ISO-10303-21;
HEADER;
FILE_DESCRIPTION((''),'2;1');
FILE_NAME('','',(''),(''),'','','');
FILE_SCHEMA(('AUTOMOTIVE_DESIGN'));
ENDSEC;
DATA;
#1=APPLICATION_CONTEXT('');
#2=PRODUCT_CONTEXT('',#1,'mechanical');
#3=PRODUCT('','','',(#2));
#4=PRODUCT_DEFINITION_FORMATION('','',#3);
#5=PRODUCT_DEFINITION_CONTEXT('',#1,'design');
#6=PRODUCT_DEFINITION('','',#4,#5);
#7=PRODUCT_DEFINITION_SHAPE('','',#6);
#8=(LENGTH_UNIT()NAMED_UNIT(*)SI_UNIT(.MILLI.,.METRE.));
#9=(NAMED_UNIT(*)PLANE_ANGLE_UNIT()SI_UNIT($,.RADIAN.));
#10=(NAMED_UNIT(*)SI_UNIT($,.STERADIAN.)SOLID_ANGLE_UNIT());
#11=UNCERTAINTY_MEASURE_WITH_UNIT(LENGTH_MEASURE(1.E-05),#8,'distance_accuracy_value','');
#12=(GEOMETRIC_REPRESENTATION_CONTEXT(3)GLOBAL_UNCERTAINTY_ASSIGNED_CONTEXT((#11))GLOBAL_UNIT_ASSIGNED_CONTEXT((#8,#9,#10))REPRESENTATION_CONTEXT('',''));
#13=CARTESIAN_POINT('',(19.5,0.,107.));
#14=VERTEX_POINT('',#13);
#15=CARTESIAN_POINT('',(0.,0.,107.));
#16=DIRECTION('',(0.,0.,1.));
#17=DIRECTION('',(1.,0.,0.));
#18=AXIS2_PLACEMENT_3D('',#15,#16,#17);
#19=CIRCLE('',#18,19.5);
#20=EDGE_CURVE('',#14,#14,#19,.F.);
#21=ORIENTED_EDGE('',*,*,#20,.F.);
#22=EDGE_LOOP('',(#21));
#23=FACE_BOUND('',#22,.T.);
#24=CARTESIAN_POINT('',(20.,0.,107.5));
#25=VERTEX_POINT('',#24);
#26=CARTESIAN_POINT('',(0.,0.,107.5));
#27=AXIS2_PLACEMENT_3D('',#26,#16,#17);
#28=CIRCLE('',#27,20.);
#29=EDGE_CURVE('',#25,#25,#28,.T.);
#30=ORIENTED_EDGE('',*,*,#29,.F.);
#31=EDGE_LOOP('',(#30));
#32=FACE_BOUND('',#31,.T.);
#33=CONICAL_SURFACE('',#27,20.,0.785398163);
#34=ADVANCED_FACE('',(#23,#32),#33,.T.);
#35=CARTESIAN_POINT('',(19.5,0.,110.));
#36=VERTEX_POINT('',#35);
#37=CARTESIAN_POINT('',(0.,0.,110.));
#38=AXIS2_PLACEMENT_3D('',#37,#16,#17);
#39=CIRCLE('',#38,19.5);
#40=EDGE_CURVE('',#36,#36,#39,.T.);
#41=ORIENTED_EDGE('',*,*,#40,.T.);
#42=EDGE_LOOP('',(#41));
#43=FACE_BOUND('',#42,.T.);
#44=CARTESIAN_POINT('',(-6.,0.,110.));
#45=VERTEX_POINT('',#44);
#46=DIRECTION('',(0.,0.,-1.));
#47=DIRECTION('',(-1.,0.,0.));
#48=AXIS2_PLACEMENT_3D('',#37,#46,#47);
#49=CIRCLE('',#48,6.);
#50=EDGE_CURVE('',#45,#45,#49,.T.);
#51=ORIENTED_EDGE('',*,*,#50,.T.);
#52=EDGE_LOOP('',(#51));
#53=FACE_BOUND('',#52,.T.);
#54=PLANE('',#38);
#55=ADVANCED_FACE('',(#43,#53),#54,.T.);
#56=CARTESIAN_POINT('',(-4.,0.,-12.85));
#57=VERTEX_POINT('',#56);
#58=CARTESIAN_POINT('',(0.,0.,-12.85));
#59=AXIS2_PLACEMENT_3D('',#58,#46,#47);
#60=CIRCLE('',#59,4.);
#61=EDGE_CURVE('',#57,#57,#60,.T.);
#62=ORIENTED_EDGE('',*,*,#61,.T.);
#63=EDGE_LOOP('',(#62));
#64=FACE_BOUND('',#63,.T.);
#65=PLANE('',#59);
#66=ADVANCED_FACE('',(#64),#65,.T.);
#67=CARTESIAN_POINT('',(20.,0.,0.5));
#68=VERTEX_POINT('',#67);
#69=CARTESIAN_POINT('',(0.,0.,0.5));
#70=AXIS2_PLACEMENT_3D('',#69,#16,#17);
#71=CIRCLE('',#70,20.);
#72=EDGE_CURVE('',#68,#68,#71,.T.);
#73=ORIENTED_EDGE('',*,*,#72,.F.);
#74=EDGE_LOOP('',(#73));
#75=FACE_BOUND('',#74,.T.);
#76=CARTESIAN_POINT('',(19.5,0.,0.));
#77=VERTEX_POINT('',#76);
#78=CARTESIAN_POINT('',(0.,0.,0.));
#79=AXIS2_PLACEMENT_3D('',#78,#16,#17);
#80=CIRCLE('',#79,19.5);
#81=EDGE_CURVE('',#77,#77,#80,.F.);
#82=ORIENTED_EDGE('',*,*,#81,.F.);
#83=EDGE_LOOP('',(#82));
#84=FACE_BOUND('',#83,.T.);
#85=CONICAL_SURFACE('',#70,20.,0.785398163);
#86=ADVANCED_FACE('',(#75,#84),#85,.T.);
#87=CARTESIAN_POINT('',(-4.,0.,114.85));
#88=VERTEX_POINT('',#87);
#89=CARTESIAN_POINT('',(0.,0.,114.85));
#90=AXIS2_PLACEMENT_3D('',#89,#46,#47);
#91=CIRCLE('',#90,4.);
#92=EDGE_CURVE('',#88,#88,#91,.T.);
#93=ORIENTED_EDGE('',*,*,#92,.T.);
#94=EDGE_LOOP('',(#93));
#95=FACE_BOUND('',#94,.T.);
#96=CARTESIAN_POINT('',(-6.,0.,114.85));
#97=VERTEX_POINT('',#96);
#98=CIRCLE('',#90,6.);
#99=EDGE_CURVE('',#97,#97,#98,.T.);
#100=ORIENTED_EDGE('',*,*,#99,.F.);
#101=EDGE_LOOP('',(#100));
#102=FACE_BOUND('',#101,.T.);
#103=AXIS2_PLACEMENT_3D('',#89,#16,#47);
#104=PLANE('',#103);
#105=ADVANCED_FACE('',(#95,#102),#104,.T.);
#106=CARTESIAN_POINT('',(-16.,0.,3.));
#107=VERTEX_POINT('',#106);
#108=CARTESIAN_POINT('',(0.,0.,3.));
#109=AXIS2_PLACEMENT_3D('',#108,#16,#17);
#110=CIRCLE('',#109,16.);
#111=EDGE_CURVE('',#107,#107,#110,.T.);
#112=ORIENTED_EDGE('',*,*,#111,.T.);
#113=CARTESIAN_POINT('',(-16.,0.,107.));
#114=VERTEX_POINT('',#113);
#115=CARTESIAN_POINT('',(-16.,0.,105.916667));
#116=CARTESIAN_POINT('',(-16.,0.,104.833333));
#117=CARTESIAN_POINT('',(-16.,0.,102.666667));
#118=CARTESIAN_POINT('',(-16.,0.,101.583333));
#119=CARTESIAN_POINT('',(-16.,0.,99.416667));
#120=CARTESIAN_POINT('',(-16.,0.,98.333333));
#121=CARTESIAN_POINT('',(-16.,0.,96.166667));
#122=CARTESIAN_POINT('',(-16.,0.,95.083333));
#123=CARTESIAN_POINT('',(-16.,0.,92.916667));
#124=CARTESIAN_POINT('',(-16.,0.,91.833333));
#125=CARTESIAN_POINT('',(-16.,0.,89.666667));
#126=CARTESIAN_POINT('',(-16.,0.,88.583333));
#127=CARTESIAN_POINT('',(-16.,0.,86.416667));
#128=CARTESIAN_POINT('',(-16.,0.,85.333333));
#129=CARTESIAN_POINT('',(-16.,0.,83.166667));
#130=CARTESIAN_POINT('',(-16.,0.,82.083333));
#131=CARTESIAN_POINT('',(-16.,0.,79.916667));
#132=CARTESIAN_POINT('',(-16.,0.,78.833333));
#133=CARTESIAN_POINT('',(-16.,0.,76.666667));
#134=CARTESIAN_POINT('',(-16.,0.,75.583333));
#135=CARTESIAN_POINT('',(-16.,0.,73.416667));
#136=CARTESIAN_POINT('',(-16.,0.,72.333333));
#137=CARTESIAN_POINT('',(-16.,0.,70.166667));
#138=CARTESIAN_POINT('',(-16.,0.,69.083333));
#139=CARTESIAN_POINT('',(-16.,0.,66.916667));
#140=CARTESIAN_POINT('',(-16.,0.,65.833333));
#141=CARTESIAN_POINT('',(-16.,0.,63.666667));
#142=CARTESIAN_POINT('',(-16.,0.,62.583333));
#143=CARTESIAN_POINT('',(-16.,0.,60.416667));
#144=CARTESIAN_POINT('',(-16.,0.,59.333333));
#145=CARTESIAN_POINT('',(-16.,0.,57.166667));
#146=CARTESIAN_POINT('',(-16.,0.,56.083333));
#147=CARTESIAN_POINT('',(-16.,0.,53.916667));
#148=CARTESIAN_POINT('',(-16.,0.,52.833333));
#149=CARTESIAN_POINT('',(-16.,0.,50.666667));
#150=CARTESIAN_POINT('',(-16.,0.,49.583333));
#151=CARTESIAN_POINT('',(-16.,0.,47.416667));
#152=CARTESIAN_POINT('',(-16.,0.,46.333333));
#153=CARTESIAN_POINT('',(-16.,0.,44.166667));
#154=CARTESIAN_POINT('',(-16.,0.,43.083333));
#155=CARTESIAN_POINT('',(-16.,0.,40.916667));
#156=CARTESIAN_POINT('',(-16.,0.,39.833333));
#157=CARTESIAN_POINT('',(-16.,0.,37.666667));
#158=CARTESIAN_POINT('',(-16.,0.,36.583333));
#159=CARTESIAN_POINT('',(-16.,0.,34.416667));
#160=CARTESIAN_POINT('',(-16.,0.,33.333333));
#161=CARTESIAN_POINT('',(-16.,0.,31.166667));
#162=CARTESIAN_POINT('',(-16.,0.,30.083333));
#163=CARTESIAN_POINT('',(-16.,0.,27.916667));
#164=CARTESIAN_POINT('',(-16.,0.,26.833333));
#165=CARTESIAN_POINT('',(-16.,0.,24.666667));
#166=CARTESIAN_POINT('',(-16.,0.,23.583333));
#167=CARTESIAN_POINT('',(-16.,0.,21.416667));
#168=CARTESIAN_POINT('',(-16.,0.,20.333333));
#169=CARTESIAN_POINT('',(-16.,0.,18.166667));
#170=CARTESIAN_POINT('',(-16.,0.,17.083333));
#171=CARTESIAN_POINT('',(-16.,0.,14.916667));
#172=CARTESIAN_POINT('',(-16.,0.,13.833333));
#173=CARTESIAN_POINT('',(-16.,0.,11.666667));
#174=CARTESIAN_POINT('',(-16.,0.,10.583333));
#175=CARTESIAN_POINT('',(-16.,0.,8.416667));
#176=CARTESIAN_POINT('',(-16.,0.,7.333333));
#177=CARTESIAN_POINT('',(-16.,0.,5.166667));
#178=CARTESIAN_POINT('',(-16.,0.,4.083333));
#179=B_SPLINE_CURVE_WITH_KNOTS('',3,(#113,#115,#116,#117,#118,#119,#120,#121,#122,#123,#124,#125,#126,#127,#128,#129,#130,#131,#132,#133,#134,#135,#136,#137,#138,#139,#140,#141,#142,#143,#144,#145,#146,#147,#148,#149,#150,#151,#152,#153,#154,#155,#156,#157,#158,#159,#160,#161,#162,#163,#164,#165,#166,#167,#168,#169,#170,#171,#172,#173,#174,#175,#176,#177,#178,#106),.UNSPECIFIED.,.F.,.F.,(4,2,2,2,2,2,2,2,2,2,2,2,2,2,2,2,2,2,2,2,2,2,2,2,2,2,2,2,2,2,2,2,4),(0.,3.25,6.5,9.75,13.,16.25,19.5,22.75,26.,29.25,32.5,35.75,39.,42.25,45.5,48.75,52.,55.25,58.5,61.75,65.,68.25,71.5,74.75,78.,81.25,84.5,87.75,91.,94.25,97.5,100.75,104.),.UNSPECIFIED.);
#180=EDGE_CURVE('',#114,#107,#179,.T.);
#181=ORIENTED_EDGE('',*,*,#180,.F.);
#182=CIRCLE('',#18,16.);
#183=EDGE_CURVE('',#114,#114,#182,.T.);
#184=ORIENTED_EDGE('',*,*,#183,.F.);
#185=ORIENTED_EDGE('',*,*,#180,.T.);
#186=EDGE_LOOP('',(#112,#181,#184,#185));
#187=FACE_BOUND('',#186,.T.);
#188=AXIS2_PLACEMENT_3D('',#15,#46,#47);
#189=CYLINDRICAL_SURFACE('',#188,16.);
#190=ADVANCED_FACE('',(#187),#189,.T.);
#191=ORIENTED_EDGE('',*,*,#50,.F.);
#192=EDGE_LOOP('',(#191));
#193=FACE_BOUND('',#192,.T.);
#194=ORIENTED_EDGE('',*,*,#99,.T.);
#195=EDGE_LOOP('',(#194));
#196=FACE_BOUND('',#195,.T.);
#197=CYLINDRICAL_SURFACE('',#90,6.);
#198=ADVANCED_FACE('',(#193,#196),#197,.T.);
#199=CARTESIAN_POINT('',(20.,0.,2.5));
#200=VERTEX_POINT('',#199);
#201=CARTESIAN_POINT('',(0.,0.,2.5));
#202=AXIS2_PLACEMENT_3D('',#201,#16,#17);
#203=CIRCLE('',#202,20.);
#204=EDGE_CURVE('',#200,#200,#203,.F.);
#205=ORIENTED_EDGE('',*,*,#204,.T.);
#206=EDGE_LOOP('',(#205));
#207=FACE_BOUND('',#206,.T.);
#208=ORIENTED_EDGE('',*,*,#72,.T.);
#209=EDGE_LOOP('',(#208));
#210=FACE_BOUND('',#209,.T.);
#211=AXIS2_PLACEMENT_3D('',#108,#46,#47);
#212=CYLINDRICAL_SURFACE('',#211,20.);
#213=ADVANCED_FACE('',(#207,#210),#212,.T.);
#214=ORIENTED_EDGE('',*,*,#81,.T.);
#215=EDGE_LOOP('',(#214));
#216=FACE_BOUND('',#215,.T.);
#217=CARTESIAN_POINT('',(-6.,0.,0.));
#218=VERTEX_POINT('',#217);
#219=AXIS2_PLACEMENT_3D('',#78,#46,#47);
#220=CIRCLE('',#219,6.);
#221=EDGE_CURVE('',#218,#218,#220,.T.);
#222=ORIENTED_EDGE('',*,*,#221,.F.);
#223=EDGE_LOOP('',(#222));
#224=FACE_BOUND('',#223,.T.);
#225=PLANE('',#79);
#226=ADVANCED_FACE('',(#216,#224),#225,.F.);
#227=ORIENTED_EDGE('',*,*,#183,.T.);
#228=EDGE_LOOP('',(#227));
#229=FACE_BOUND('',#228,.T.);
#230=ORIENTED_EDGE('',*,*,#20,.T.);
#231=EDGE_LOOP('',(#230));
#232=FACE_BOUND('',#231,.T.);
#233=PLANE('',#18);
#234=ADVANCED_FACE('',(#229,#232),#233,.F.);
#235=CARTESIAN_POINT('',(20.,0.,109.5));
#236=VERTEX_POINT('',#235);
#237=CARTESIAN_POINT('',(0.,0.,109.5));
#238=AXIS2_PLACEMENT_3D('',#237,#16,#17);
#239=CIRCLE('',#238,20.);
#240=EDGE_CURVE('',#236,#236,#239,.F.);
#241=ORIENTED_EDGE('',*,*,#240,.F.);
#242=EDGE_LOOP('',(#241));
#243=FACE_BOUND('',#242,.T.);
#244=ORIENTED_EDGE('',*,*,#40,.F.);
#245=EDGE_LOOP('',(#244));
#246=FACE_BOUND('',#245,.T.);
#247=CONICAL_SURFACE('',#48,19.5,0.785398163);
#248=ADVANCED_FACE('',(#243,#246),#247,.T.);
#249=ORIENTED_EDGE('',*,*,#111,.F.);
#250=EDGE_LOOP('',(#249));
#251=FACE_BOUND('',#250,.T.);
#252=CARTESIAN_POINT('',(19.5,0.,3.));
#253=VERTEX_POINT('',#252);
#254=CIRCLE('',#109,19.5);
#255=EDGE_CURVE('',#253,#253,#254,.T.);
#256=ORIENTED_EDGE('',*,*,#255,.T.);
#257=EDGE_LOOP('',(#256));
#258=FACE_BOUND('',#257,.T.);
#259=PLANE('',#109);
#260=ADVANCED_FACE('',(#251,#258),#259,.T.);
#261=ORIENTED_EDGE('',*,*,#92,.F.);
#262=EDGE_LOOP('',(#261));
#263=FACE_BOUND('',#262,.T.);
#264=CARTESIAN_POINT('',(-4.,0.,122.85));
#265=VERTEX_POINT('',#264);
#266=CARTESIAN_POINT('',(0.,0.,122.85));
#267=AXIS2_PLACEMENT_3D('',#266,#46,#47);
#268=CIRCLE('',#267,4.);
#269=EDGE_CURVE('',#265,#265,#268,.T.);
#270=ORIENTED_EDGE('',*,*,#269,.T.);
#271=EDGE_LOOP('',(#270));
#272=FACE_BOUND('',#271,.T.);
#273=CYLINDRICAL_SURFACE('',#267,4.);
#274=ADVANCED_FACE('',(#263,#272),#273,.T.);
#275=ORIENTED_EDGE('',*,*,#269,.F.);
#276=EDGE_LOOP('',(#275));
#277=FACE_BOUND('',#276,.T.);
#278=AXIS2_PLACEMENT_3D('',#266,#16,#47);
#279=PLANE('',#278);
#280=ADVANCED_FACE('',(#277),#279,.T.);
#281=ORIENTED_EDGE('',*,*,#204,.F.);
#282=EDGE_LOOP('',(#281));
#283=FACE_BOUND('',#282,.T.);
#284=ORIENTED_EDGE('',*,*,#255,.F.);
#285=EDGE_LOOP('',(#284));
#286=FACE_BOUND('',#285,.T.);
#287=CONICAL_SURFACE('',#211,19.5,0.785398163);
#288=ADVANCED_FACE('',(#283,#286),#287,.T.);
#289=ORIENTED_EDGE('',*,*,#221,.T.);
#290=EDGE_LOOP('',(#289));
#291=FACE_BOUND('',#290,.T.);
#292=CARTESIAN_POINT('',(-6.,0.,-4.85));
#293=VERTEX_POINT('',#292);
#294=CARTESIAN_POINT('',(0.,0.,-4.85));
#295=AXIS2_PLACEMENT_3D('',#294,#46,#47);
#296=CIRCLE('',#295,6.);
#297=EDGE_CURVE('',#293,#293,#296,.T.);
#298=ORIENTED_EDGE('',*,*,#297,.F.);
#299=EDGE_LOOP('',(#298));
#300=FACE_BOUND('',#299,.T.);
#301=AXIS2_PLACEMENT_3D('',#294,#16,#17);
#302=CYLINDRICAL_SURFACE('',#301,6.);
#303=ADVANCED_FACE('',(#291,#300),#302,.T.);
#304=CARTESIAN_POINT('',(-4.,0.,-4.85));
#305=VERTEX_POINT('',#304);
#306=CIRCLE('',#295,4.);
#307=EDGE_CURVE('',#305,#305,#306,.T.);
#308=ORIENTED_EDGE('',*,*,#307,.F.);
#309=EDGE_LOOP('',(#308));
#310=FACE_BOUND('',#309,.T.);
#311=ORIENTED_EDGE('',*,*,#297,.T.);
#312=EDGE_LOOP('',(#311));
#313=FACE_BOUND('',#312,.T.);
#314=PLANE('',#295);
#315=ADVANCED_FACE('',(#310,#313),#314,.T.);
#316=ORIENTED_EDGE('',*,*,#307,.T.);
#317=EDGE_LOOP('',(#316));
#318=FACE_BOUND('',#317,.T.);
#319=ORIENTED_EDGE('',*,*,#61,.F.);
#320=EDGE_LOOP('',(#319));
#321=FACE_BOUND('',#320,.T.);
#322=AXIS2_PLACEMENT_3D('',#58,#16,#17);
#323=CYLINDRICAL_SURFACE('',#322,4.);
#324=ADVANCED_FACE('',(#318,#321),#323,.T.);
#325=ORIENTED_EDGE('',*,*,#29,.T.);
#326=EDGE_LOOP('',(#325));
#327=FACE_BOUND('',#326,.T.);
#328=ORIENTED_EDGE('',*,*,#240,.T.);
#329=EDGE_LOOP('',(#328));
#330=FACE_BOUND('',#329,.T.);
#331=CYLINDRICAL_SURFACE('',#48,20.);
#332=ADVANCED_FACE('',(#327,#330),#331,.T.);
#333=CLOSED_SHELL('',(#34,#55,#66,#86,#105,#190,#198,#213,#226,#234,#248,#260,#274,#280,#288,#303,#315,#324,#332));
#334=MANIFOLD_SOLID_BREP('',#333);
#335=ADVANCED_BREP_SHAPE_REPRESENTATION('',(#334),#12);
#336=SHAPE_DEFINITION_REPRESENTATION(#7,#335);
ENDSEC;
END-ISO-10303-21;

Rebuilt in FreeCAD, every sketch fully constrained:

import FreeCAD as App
import Part
import Sketcher
Q = App.Units.Quantity


def edges_at(feature, points):
    """Names of the edges that pass closest to the given points."""
    edges = feature.Shape.Edges
    near = lambda p: min(range(len(edges)), key=lambda i: edges[i].distToShape(Part.Vertex(*p))[0])
    return sorted({f"Edge{near(p) + 1}" for p in points})

doc = App.newDocument("Part")
body = doc.addObject("PartDesign::Body", "Body")

sketch1 = body.newObject("Sketcher::SketchObject", "Sketch")
sketch1.AttachmentSupport = (doc.getObject("XY_Plane"), [""])
sketch1.MapMode = "FlatFace"
sketch1.addGeometry(Part.Circle(App.Vector(0, 0, 0), App.Vector(0, 0, 1), 20), False)
sketch1.addConstraint([
    Sketcher.Constraint("Coincident", 0, 3, -1, 1),
    Sketcher.Constraint("Diameter", 0, Q("40 mm")),
])
pad1 = body.newObject("PartDesign::Pad", "Pad")
pad1.Profile = sketch1
pad1.Length = 3
doc.recompute()

chamfer = body.newObject("PartDesign::Chamfer", "Chamfer")
chamfer.Base = (pad1, edges_at(pad1, [(-20, 0, 0), (-20, 0, 3)]))
chamfer.Size = 0.5

sketch2 = body.newObject("Sketcher::SketchObject", "Sketch001")
sketch2.AttachmentSupport = (doc.getObject("XY_Plane"), [""])
sketch2.MapMode = "FlatFace"
sketch2.AttachmentOffset = App.Placement(App.Vector(0, 0, 3), App.Rotation())
sketch2.addGeometry(Part.Circle(App.Vector(0, 0, 0), App.Vector(0, 0, 1), 16), False)
sketch2.addConstraint([
    Sketcher.Constraint("Coincident", 0, 3, -1, 1),
    Sketcher.Constraint("Diameter", 0, Q("32 mm")),
])
pad2 = body.newObject("PartDesign::Pad", "Pad001")
pad2.Profile = sketch2
pad2.Length = 104

sketch3 = body.newObject("Sketcher::SketchObject", "Sketch002")
sketch3.AttachmentSupport = (doc.getObject("XY_Plane"), [""])
sketch3.MapMode = "FlatFace"
sketch3.AttachmentOffset = App.Placement(App.Vector(0, 0, 107), App.Rotation())
sketch3.addGeometry(Part.Circle(App.Vector(0, 0, 0), App.Vector(0, 0, 1), 20), False)
sketch3.addConstraint([
    Sketcher.Constraint("Coincident", 0, 3, -1, 1),
    Sketcher.Constraint("Diameter", 0, Q("40 mm")),
])
pad3 = body.newObject("PartDesign::Pad", "Pad002")
pad3.Profile = sketch3
pad3.Length = 3
doc.recompute()

chamfer2 = body.newObject("PartDesign::Chamfer", "Chamfer001")
chamfer2.Base = (pad3, edges_at(pad3, [(-20, 0, 107), (-20, 0, 110)]))
chamfer2.Size = 0.5

sketch4 = body.newObject("Sketcher::SketchObject", "Sketch003")
sketch4.AttachmentSupport = (doc.getObject("XY_Plane"), [""])
sketch4.MapMode = "FlatFace"
sketch4.addGeometry(Part.Circle(App.Vector(0, 0, 0), App.Vector(0, 0, 1), 6), False)
sketch4.addConstraint([
    Sketcher.Constraint("Coincident", 0, 3, -1, 1),
    Sketcher.Constraint("Diameter", 0, Q("12 mm")),
])
pad4 = body.newObject("PartDesign::Pad", "Pad003")
pad4.Profile = sketch4
pad4.Length = 4.85
pad4.Reversed = True

sketch5 = body.newObject("Sketcher::SketchObject", "Sketch004")
sketch5.AttachmentSupport = (doc.getObject("XY_Plane"), [""])
sketch5.MapMode = "FlatFace"
sketch5.AttachmentOffset = App.Placement(App.Vector(0, 0, -4.85), App.Rotation())
sketch5.addGeometry(Part.Circle(App.Vector(0, 0, 0), App.Vector(0, 0, 1), 4), False)
sketch5.addConstraint([
    Sketcher.Constraint("Coincident", 0, 3, -1, 1),
    Sketcher.Constraint("Diameter", 0, Q("8 mm")),
])
pad5 = body.newObject("PartDesign::Pad", "Pad004")
pad5.Profile = sketch5
pad5.Length = 8
pad5.Reversed = True
doc.recompute()

datumplane = body.newObject("PartDesign::Plane", "DatumPlane")
datumplane.AttachmentSupport = (doc.getObject("XY_Plane"), [""])
datumplane.MapMode = "FlatFace"
datumplane.AttachmentOffset = App.Placement(App.Vector(0, 0, 55), App.Rotation())
mirrored = body.newObject("PartDesign::Mirrored", "Mirrored")
mirrored.Originals = [pad4, pad5]
mirrored.MirrorPlane = (datumplane, [""])
body.Tip = mirrored

doc.recompute()
